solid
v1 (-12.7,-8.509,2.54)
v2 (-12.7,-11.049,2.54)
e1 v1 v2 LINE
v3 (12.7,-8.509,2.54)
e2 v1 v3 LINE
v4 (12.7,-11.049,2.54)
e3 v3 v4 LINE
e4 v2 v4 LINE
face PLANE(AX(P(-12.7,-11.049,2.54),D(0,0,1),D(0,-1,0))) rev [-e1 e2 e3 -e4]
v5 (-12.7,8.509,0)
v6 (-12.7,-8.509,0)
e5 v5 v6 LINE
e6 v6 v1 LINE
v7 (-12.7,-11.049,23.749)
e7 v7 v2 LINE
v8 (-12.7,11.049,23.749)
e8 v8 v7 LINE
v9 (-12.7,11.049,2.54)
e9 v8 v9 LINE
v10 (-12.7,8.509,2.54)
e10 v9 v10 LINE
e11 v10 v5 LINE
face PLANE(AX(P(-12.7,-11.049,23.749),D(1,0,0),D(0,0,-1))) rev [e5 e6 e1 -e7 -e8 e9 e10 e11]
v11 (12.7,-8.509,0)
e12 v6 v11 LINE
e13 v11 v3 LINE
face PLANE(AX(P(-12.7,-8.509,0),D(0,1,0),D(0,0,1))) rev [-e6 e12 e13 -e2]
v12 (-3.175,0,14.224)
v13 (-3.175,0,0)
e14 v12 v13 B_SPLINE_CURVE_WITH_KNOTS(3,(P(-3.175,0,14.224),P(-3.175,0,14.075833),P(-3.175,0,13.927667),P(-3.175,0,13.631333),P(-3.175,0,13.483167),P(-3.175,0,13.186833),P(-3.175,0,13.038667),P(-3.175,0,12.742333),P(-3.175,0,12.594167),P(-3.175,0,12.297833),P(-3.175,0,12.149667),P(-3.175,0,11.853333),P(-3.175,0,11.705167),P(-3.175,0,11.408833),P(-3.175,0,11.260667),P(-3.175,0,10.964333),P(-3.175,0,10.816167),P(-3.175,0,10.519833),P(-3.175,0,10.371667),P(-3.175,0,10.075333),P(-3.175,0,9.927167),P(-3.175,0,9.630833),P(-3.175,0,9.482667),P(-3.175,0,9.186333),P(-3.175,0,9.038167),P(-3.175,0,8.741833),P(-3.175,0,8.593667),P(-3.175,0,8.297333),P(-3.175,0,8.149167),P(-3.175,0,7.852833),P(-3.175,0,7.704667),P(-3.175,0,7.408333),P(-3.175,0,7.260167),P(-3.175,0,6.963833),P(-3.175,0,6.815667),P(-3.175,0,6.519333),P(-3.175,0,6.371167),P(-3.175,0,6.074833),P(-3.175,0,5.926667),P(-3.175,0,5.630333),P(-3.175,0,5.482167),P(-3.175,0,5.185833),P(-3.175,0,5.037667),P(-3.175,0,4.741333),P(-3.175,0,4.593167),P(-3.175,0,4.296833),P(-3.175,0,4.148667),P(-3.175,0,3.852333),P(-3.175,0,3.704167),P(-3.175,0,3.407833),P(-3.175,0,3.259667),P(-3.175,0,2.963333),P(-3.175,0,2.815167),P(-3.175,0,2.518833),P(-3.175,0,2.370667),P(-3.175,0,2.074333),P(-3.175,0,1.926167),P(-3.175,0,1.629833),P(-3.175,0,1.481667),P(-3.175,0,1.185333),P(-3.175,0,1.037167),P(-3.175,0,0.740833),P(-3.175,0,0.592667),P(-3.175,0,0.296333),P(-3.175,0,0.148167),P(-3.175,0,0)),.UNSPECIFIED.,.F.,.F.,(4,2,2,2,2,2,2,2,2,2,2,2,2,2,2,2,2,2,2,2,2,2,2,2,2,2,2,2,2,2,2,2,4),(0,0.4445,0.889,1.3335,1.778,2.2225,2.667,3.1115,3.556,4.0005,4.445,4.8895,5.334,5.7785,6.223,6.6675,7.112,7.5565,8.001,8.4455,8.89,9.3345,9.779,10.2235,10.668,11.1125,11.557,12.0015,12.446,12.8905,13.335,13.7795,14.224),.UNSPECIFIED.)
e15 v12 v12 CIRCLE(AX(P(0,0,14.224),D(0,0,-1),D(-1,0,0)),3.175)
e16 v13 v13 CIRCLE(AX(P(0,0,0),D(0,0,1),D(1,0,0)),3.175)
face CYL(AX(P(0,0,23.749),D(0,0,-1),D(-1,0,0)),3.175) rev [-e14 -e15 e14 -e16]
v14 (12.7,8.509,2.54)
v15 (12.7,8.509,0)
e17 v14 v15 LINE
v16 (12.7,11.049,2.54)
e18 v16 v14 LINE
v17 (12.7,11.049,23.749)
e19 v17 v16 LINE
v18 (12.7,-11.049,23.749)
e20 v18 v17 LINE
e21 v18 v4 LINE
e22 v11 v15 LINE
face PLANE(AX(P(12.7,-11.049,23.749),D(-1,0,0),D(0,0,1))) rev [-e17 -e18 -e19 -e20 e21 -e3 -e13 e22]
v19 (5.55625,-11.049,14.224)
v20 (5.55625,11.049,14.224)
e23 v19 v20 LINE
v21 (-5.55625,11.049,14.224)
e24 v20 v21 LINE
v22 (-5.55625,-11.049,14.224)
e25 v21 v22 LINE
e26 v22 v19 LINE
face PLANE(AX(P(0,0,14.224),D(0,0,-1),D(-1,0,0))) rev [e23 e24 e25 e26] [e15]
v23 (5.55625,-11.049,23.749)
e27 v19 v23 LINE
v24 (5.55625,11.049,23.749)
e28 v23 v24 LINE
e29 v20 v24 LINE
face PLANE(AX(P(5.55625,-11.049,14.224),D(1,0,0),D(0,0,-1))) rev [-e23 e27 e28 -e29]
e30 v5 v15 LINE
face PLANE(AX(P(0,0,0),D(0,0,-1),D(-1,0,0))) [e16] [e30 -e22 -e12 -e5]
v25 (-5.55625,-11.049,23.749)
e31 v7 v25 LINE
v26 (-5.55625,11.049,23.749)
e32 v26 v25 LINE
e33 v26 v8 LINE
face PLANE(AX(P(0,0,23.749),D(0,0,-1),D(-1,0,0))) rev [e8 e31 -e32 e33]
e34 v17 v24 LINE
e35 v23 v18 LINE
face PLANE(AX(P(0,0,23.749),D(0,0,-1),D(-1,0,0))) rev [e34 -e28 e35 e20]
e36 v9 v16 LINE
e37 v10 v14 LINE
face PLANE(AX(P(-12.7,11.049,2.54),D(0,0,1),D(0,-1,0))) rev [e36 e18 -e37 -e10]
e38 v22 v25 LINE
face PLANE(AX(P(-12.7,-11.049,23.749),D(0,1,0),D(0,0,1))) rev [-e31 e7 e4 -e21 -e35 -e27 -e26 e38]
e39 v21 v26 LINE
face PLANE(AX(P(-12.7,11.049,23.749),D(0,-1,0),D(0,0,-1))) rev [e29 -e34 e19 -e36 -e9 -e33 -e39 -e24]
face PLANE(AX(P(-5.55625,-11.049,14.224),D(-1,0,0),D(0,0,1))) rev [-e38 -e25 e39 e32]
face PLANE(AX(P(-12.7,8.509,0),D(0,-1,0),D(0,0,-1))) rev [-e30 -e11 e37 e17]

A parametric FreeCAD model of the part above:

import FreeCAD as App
import Part
import Sketcher

V = App.Vector
Q = App.Units.Quantity

doc = App.newDocument("Part")
params = doc.addObject("Spreadsheet::Sheet", "Params")
for row, (alias, value) in enumerate([
    ("sketch1_diameter", "0.25 in"),
    ("sketch1_width", "1 in"),
    ("sketch1_height", "0.87 in"),
    ("pad1_length", "0.935 in"),
    ("sketch2_height", "0.87 in"),
    ("sketch2_width", "0.4375 in"),
    ("pocket1_length", "0.375 in"),
    ("sketch3_width", "0.1 in"),
], start=1):
    params.set(f"A{row}", alias)
    params.set(f"B{row}", "=" + value)
    params.setAlias(f"B{row}", alias)

body = doc.addObject("PartDesign::Body", "Body")

sketch1 = body.newObject("Sketcher::SketchObject", "Sketch")
sketch1.AttachmentSupport = (doc.getObject("XY_Plane"), [""])
sketch1.MapMode = "FlatFace"
sketch1.addGeometry(Part.LineSegment(V(-12.7, 11, 0), V(-12.7, -11, 0)), False)
sketch1.addGeometry(Part.LineSegment(V(-12.7, -11, 0), V(12.7, -11, 0)), False)
sketch1.addGeometry(Part.LineSegment(V(12.7, -11, 0), V(12.7, 11, 0)), False)
sketch1.addGeometry(Part.LineSegment(V(12.7, 11, 0), V(-12.7, 11, 0)), False)
sketch1.addGeometry(Part.Circle(V(0, 0, 0), V(0, 0, 1), 3.2), False)
sketch1.addConstraint(Sketcher.Constraint("Coincident", 0, 2, 1, 1))
sketch1.addConstraint(Sketcher.Constraint("Coincident", 1, 2, 2, 1))
sketch1.addConstraint(Sketcher.Constraint("Coincident", 2, 2, 3, 1))
sketch1.addConstraint(Sketcher.Constraint("Coincident", 3, 2, 0, 1))
sketch1.addConstraint(Sketcher.Constraint("Vertical", 0))
sketch1.addConstraint(Sketcher.Constraint("Horizontal", 1))
sketch1.addConstraint(Sketcher.Constraint("Vertical", 2))
sketch1.addConstraint(Sketcher.Constraint("Horizontal", 3))
sketch1.addConstraint(Sketcher.Constraint("Coincident", 4, 3, -1, 1))
sketch1.addConstraint(Sketcher.Constraint("Symmetric", 0, 2, 2, 2, -1, 1))
sketch1.addConstraint(Sketcher.Constraint("Diameter", 4, Q("0.25 in")))
sketch1.addConstraint(Sketcher.Constraint("DistanceX", 1, 1, 1, 2, Q("1 in")))
sketch1.addConstraint(Sketcher.Constraint("DistanceY", 0, 2, 0, 1, Q("0.87 in")))
sketch1.setExpression("Constraints[10]", "Params.sketch1_diameter")
sketch1.setExpression("Constraints[11]", "Params.sketch1_width")
sketch1.setExpression("Constraints[12]", "Params.sketch1_height")
pad1 = body.newObject("PartDesign::Pad", "Pad")
pad1.Profile = sketch1
pad1.setExpression("Length", "Params.pad1_length")

sketch2 = body.newObject("Sketcher::SketchObject", "Sketch001")
sketch2.AttachmentSupport = (doc.getObject("XY_Plane"), [""])
sketch2.MapMode = "FlatFace"
sketch2.AttachmentOffset = App.Placement(V(0, 0, 0.935 * 25.4), App.Rotation())
sketch2.addGeometry(Part.LineSegment(V(-6, 11, 0), V(-6, -11, 0)), False)
sketch2.addGeometry(Part.LineSegment(V(-6, -11, 0), V(6, -11, 0)), False)
sketch2.addGeometry(Part.LineSegment(V(6, -11, 0), V(6, 11, 0)), False)
sketch2.addGeometry(Part.LineSegment(V(6, 11, 0), V(-6, 11, 0)), False)
sketch2.addConstraint(Sketcher.Constraint("Coincident", 0, 2, 1, 1))
sketch2.addConstraint(Sketcher.Constraint("Coincident", 1, 2, 2, 1))
sketch2.addConstraint(Sketcher.Constraint("Coincident", 2, 2, 3, 1))
sketch2.addConstraint(Sketcher.Constraint("Coincident", 3, 2, 0, 1))
sketch2.addConstraint(Sketcher.Constraint("Vertical", 0))
sketch2.addConstraint(Sketcher.Constraint("Horizontal", 1))
sketch2.addConstraint(Sketcher.Constraint("Vertical", 2))
sketch2.addConstraint(Sketcher.Constraint("Horizontal", 3))
sketch2.addConstraint(Sketcher.Constraint("Symmetric", 0, 2, 2, 2, -1, 1))
sketch2.addConstraint(Sketcher.Constraint("DistanceY", 0, 2, 0, 1, Q("0.87 in")))
sketch2.addConstraint(Sketcher.Constraint("DistanceX", 1, 1, 1, 2, Q("0.4375 in")))
sketch2.setExpression("Constraints[9]", "Params.sketch2_height")
sketch2.setExpression("Constraints[10]", "Params.sketch2_width")
pocket1 = body.newObject("PartDesign::Pocket", "Pocket")
pocket1.Profile = sketch2
pocket1.setExpression("Length", "Params.pocket1_length")

sketch3 = body.newObject("Sketcher::SketchObject", "Sketch002")
sketch3.AttachmentSupport = (doc.getObject("YZ_Plane"), [""])
sketch3.MapMode = "FlatFace"
sketch3.addGeometry(Part.LineSegment(V(11, 2.5, 0), V(8.5, 2.5, 0)), False)
sketch3.addGeometry(Part.LineSegment(V(8.5, 2.5, 0), V(8.5, 0, 0)), False)
sketch3.addGeometry(Part.LineSegment(V(8.5, 0, 0), V(11, 0, 0)), False)
sketch3.addGeometry(Part.LineSegment(V(11, 0, 0), V(11, 2.5, 0)), False)
sketch3.addGeometry(Part.LineSegment(V(-8.5, 2.5, 0), V(-11, 2.5, 0)), False)
sketch3.addGeometry(Part.LineSegment(V(-11, 2.5, 0), V(-11, 0, 0)), False)
sketch3.addGeometry(Part.LineSegment(V(-11, 0, 0), V(-8.5, 0, 0)), False)
sketch3.addGeometry(Part.LineSegment(V(-8.5, 0, 0), V(-8.5, 2.5, 0)), False)
sketch3.addConstraint(Sketcher.Constraint("Coincident", 0, 2, 1, 1))
sketch3.addConstraint(Sketcher.Constraint("Coincident", 1, 2, 2, 1))
sketch3.addConstraint(Sketcher.Constraint("Coincident", 2, 2, 3, 1))
sketch3.addConstraint(Sketcher.Constraint("Coincident", 3, 2, 0, 1))
sketch3.addConstraint(Sketcher.Constraint("Coincident", 4, 2, 5, 1))
sketch3.addConstraint(Sketcher.Constraint("Coincident", 5, 2, 6, 1))
sketch3.addConstraint(Sketcher.Constraint("Coincident", 6, 2, 7, 1))
sketch3.addConstraint(Sketcher.Constraint("Coincident", 7, 2, 4, 1))
sketch3.addConstraint(Sketcher.Constraint("Horizontal", 0))
sketch3.addConstraint(Sketcher.Constraint("Vertical", 1))
sketch3.addConstraint(Sketcher.Constraint("Horizontal", 2))
sketch3.addConstraint(Sketcher.Constraint("Vertical", 3))
sketch3.addConstraint(Sketcher.Constraint("Horizontal", 4))
sketch3.addConstraint(Sketcher.Constraint("Vertical", 5))
sketch3.addConstraint(Sketcher.Constraint("Horizontal", 6))
sketch3.addConstraint(Sketcher.Constraint("Vertical", 7))
sketch3.addConstraint(Sketcher.Constraint("Symmetric", 2, 2, 5, 2, -1, 1))
sketch3.addConstraint(Sketcher.Constraint("Symmetric", 1, 2, 6, 2, -2))
sketch3.addConstraint(Sketcher.Constraint("Horizontal", 3, 2, 4, 2))
sketch3.addConstraint(Sketcher.Constraint("Equal", 6, 1))
sketch3.addConstraint(Sketcher.Constraint("DistanceX", 0, 2, 0, 1, Q("0.1 in")))
sketch3.addConstraint(Sketcher.Constraint("DistanceX", 4, 2, 0, 2, Q("0.77 in")))
sketch3.setExpression("Constraints[20]", "Params.sketch3_width")
pocket2 = body.newObject("PartDesign::Pocket", "Pocket001")
pocket2.Profile = sketch3
pocket2.Type = "ThroughAll"
pocket2.Midplane = True

doc.recompute()
